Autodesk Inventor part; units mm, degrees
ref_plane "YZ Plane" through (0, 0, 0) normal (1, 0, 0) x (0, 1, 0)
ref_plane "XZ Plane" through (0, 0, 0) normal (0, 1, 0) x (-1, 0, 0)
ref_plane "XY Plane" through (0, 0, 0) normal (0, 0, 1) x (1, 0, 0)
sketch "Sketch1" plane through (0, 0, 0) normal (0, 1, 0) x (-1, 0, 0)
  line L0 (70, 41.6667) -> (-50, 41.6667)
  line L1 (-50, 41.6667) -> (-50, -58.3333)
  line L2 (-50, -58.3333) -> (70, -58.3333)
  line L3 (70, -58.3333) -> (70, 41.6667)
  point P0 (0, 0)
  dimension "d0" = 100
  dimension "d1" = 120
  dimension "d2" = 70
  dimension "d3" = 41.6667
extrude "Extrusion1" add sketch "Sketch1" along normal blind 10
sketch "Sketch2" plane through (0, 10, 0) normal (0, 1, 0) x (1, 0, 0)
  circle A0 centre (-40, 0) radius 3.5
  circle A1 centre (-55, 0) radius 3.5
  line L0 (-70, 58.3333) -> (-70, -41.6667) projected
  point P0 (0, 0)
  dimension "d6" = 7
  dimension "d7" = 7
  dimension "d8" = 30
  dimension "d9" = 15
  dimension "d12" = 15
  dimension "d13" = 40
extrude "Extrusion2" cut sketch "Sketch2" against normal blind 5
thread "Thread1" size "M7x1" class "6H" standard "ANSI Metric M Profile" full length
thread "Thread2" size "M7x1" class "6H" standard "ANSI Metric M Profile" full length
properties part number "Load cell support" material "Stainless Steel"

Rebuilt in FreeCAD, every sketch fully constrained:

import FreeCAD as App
import Part
import Sketcher
from FreeCAD import Vector
Q = App.Units.Quantity

doc = App.newDocument("Part")
body = doc.addObject("PartDesign::Body", "Body")

sketch1 = body.newObject("Sketcher::SketchObject", "Sketch")
sketch1.AttachmentSupport = (doc.getObject("XZ_Plane"), [""])
sketch1.MapMode = "FlatFace"
sketch1.addGeometry([
    Part.LineSegment(Vector(-70, -58, 0), Vector(-70, 42, 0)),
    Part.LineSegment(Vector(-70, 42, 0), Vector(50, 42, 0)),
    Part.LineSegment(Vector(50, 42, 0), Vector(50, -58, 0)),
    Part.LineSegment(Vector(50, -58, 0), Vector(-70, -58, 0)),
], False)
sketch1.addConstraint([
    Sketcher.Constraint("Coincident", 0, 2, 1, 1),
    Sketcher.Constraint("Coincident", 1, 2, 2, 1),
    Sketcher.Constraint("Coincident", 2, 2, 3, 1),
    Sketcher.Constraint("Coincident", 3, 2, 0, 1),
    Sketcher.Constraint("Vertical", 0),
    Sketcher.Constraint("Horizontal", 1),
    Sketcher.Constraint("Vertical", 2),
    Sketcher.Constraint("Horizontal", 3),
    Sketcher.Constraint("DistanceX", 1, 1, 1, 2, Q("120 mm")),
    Sketcher.Constraint("DistanceY", 0, 1, 0, 2, Q("100 mm")),
    Sketcher.Constraint("DistanceX", 0, 2, -1, 1, Q("70 mm")),
    Sketcher.Constraint("DistanceY", -1, 1, 0, 2, Q("41.6667 mm")),
])
pad1 = body.newObject("PartDesign::Pad", "Pad")
pad1.Profile = sketch1
pad1.Length = 10
pad1.Reversed = True

sketch2 = body.newObject("Sketcher::SketchObject", "Sketch001")
sketch2.AttachmentSupport = (doc.getObject("XZ_Plane"), [""])
sketch2.MapMode = "FlatFace"
sketch2.AttachmentOffset = App.Placement(Vector(0, 0, -10), App.Rotation())
sketch2.addGeometry([
    Part.Circle(Vector(-40, 0, 0), Vector(0, 0, 1), 3.5),
    Part.Circle(Vector(-55, 0, 0), Vector(0, 0, 1), 3.5),
], False)
sketch2.addConstraint([
    Sketcher.Constraint("Equal", 0, 1),
    Sketcher.Constraint("PointOnObject", 0, 3, -1),
    Sketcher.Constraint("PointOnObject", 1, 3, -1),
    Sketcher.Constraint("Diameter", 0, Q("7 mm")),
    Sketcher.Constraint("DistanceX", 0, 3, -1, 1, Q("40 mm")),
    Sketcher.Constraint("DistanceX", 1, 3, 0, 3, Q("15 mm")),
])
pocket1 = body.newObject("PartDesign::Pocket", "Pocket")
pocket1.Profile = sketch2
pocket1.Length = 5
pocket1.Reversed = True

doc.recompute()
